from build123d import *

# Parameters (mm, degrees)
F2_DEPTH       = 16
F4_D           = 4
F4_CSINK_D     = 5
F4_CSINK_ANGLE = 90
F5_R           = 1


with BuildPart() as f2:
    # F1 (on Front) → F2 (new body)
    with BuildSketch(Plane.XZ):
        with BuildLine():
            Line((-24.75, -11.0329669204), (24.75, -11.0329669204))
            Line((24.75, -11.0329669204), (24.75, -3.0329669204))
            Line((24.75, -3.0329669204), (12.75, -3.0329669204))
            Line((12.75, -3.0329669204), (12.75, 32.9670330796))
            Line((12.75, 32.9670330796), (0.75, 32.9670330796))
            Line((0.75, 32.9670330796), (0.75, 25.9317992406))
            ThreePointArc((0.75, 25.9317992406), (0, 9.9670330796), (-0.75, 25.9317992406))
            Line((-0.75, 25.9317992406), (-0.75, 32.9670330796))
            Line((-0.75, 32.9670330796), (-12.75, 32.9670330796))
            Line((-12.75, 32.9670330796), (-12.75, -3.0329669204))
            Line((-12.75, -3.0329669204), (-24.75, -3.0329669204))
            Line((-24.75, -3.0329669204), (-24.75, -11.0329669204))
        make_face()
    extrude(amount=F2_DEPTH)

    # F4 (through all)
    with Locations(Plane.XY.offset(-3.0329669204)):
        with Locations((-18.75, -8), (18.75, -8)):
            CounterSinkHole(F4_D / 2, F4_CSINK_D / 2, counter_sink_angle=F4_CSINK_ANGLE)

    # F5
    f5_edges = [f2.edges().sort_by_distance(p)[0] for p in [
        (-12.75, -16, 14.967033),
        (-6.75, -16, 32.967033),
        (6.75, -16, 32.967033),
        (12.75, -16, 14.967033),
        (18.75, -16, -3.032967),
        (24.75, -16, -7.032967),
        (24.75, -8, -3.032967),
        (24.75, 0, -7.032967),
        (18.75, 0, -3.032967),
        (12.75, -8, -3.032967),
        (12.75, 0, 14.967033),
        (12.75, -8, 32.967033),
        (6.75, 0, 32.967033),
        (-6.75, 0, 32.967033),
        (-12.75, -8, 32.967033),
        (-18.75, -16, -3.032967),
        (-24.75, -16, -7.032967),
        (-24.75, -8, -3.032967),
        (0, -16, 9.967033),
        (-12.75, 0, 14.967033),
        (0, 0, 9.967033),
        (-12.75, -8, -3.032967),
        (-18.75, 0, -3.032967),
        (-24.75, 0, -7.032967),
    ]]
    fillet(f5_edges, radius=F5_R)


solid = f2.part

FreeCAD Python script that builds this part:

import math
import FreeCAD as App
import Part
import Sketcher
from FreeCAD import Vector
Q = App.Units.Quantity


def edges_at(feature, points):
    """Names of the edges that pass closest to the given points."""
    edges = feature.Shape.Edges
    near = lambda p: min(range(len(edges)), key=lambda i: edges[i].distToShape(Part.Vertex(*p))[0])
    return sorted({f"Edge{near(p) + 1}" for p in points})

doc = App.newDocument("Part")
body = doc.addObject("PartDesign::Body", "Body")

sketch1 = body.newObject("Sketcher::SketchObject", "Sketch")
sketch1.AttachmentSupport = (doc.getObject("XZ_Plane"), [""])
sketch1.MapMode = "FlatFace"
sketch1.addGeometry(Part.LineSegment(Vector(-24.8, -11, 0), Vector(24.8, -11, 0)), False)
sketch1.addGeometry(Part.LineSegment(Vector(24.8, -11, 0), Vector(24.8, -3, 0)), False)
sketch1.addGeometry(Part.LineSegment(Vector(24.8, -3, 0), Vector(12.8, -3, 0)), False)
sketch1.addGeometry(Part.LineSegment(Vector(12.8, -3, 0), Vector(12.8, 33, 0)), False)
sketch1.addGeometry(Part.LineSegment(Vector(12.8, 33, 0), Vector(0.8, 33, 0)), False)
sketch1.addGeometry(Part.LineSegment(Vector(0.8, 33, 0), Vector(0.8, 25.9, 0)), False)
sketch1.addGeometry(Part.ArcOfCircle(Part.Circle(Vector(0, 18, 0), Vector(0, 0, 1), 8), math.radians(95), math.radians(445)), False)
sketch1.addGeometry(Part.LineSegment(Vector(-0.8, 25.9, 0), Vector(-0.8, 33, 0)), False)
sketch1.addGeometry(Part.LineSegment(Vector(-0.8, 33, 0), Vector(-12.8, 33, 0)), False)
sketch1.addGeometry(Part.LineSegment(Vector(-12.8, 33, 0), Vector(-12.8, -3, 0)), False)
sketch1.addGeometry(Part.LineSegment(Vector(-12.8, -3, 0), Vector(-24.8, -3, 0)), False)
sketch1.addGeometry(Part.LineSegment(Vector(-24.8, -3, 0), Vector(-24.8, -11, 0)), False)
sketch1.addConstraint(Sketcher.Constraint("Coincident", 0, 2, 1, 1))
sketch1.addConstraint(Sketcher.Constraint("Coincident", 1, 2, 2, 1))
sketch1.addConstraint(Sketcher.Constraint("Coincident", 2, 2, 3, 1))
sketch1.addConstraint(Sketcher.Constraint("Coincident", 3, 2, 4, 1))
sketch1.addConstraint(Sketcher.Constraint("Coincident", 4, 2, 5, 1))
sketch1.addConstraint(Sketcher.Constraint("Coincident", 5, 2, 6, 2))
sketch1.addConstraint(Sketcher.Constraint("Coincident", 6, 1, 7, 1))
sketch1.addConstraint(Sketcher.Constraint("Coincident", 7, 2, 8, 1))
sketch1.addConstraint(Sketcher.Constraint("Coincident", 8, 2, 9, 1))
sketch1.addConstraint(Sketcher.Constraint("Coincident", 9, 2, 10, 1))
sketch1.addConstraint(Sketcher.Constraint("Coincident", 10, 2, 11, 1))
sketch1.addConstraint(Sketcher.Constraint("Coincident", 11, 2, 0, 1))
sketch1.addConstraint(Sketcher.Constraint("Horizontal", 0))
sketch1.addConstraint(Sketcher.Constraint("Vertical", 1))
sketch1.addConstraint(Sketcher.Constraint("Horizontal", 2))
sketch1.addConstraint(Sketcher.Constraint("Vertical", 3))
sketch1.addConstraint(Sketcher.Constraint("Horizontal", 4))
sketch1.addConstraint(Sketcher.Constraint("Vertical", 5))
sketch1.addConstraint(Sketcher.Constraint("Vertical", 7))
sketch1.addConstraint(Sketcher.Constraint("Horizontal", 8))
sketch1.addConstraint(Sketcher.Constraint("Vertical", 9))
sketch1.addConstraint(Sketcher.Constraint("Horizontal", 10))
sketch1.addConstraint(Sketcher.Constraint("Vertical", 11))
sketch1.addConstraint(Sketcher.Constraint("Symmetric", 5, 2, 6, 1, -2))
sketch1.addConstraint(Sketcher.Constraint("Symmetric", 3, 2, 8, 2, -2))
sketch1.addConstraint(Sketcher.Constraint("Symmetric", 1, 2, 10, 2, -2))
sketch1.addConstraint(Sketcher.Constraint("Equal", 2, 4))
sketch1.addConstraint(Sketcher.Constraint("Radius", 6, Q("8 mm")))
sketch1.addConstraint(Sketcher.Constraint("DistanceX", 2, 2, 2, 1, Q("12 mm")))
sketch1.addConstraint(Sketcher.Constraint("DistanceY", 1, 1, 1, 2, Q("8 mm")))
sketch1.addConstraint(Sketcher.Constraint("DistanceY", 3, 1, 3, 2, Q("36 mm")))
sketch1.addConstraint(Sketcher.Constraint("DistanceX", 0, 1, 0, 2, Q("49.5 mm")))
sketch1.addConstraint(Sketcher.Constraint("DistanceY", 0, 2, 6, 3, Q("29 mm")))
sketch1.addConstraint(Sketcher.Constraint("DistanceY", -1, 1, 5, 2, Q("25.931799 mm")))
pad1 = body.newObject("PartDesign::Pad", "Pad")
pad1.Profile = sketch1
pad1.Length = 16

sketch2 = body.newObject("Sketcher::SketchObject", "Sketch001")
sketch2.AttachmentSupport = (doc.getObject("XY_Plane"), [""])
sketch2.MapMode = "FlatFace"
sketch2.AttachmentOffset = App.Placement(Vector(0, 0, -3.032967), App.Rotation())
sketch2.addGeometry(Part.Circle(Vector(-18.8, -8, 0), Vector(0, 0, 1), 2), False)
sketch2.addGeometry(Part.Circle(Vector(18.8, -8, 0), Vector(0, 0, 1), 2), False)
sketch2.addConstraint(Sketcher.Constraint("Equal", 0, 1))
sketch2.addConstraint(Sketcher.Constraint("Symmetric", 0, 3, 1, 3, -2))
sketch2.addConstraint(Sketcher.Constraint("Diameter", 0, Q("4 mm")))
sketch2.addConstraint(Sketcher.Constraint("DistanceY", 0, 3, -1, 1, Q("8 mm")))
sketch2.addConstraint(Sketcher.Constraint("DistanceX", 0, 3, 1, 3, Q("37.5 mm")))
doc.recompute()
hole = body.newObject("PartDesign::Hole", "Hole")
hole.Profile = sketch2
hole.ThreadType = "None"
hole.Diameter = 4
hole.DepthType = "ThroughAll"
hole.HoleCutType = "Countersink"
hole.HoleCutDiameter = 5
hole.HoleCutCountersinkAngle = 90
doc.recompute()

fillet = body.newObject("PartDesign::Fillet", "Fillet")
fillet.Base = (hole, edges_at(hole, [
    (-12.75, -16, 14.967),
    (-6.75, -16, 32.967),
    (6.75, -16, 32.967),
    (12.75, -16, 14.967),
    (18.75, -16, -3.033),
    (24.75, -16, -7.033),
    (24.75, -8, -3.033),
    (24.75, 0, -7.033),
    (18.75, 0, -3.033),
    (12.75, -8, -3.033),
    (12.75, 0, 14.967),
    (12.75, -8, 32.967),
    (6.75, 0, 32.967),
    (-6.75, 0, 32.967),
    (-12.75, -8, 32.967),
    (-18.75, -16, -3.033),
    (-24.75, -16, -7.033),
    (-24.75, -8, -3.033),
    (0, -16, 9.967),
    (-12.75, 0, 14.967),
    (0, 0, 9.967),
    (-12.75, -8, -3.033),
    (-18.75, 0, -3.033),
    (-24.75, 0, -7.033),
]))
fillet.Radius = 1

doc.recompute()
